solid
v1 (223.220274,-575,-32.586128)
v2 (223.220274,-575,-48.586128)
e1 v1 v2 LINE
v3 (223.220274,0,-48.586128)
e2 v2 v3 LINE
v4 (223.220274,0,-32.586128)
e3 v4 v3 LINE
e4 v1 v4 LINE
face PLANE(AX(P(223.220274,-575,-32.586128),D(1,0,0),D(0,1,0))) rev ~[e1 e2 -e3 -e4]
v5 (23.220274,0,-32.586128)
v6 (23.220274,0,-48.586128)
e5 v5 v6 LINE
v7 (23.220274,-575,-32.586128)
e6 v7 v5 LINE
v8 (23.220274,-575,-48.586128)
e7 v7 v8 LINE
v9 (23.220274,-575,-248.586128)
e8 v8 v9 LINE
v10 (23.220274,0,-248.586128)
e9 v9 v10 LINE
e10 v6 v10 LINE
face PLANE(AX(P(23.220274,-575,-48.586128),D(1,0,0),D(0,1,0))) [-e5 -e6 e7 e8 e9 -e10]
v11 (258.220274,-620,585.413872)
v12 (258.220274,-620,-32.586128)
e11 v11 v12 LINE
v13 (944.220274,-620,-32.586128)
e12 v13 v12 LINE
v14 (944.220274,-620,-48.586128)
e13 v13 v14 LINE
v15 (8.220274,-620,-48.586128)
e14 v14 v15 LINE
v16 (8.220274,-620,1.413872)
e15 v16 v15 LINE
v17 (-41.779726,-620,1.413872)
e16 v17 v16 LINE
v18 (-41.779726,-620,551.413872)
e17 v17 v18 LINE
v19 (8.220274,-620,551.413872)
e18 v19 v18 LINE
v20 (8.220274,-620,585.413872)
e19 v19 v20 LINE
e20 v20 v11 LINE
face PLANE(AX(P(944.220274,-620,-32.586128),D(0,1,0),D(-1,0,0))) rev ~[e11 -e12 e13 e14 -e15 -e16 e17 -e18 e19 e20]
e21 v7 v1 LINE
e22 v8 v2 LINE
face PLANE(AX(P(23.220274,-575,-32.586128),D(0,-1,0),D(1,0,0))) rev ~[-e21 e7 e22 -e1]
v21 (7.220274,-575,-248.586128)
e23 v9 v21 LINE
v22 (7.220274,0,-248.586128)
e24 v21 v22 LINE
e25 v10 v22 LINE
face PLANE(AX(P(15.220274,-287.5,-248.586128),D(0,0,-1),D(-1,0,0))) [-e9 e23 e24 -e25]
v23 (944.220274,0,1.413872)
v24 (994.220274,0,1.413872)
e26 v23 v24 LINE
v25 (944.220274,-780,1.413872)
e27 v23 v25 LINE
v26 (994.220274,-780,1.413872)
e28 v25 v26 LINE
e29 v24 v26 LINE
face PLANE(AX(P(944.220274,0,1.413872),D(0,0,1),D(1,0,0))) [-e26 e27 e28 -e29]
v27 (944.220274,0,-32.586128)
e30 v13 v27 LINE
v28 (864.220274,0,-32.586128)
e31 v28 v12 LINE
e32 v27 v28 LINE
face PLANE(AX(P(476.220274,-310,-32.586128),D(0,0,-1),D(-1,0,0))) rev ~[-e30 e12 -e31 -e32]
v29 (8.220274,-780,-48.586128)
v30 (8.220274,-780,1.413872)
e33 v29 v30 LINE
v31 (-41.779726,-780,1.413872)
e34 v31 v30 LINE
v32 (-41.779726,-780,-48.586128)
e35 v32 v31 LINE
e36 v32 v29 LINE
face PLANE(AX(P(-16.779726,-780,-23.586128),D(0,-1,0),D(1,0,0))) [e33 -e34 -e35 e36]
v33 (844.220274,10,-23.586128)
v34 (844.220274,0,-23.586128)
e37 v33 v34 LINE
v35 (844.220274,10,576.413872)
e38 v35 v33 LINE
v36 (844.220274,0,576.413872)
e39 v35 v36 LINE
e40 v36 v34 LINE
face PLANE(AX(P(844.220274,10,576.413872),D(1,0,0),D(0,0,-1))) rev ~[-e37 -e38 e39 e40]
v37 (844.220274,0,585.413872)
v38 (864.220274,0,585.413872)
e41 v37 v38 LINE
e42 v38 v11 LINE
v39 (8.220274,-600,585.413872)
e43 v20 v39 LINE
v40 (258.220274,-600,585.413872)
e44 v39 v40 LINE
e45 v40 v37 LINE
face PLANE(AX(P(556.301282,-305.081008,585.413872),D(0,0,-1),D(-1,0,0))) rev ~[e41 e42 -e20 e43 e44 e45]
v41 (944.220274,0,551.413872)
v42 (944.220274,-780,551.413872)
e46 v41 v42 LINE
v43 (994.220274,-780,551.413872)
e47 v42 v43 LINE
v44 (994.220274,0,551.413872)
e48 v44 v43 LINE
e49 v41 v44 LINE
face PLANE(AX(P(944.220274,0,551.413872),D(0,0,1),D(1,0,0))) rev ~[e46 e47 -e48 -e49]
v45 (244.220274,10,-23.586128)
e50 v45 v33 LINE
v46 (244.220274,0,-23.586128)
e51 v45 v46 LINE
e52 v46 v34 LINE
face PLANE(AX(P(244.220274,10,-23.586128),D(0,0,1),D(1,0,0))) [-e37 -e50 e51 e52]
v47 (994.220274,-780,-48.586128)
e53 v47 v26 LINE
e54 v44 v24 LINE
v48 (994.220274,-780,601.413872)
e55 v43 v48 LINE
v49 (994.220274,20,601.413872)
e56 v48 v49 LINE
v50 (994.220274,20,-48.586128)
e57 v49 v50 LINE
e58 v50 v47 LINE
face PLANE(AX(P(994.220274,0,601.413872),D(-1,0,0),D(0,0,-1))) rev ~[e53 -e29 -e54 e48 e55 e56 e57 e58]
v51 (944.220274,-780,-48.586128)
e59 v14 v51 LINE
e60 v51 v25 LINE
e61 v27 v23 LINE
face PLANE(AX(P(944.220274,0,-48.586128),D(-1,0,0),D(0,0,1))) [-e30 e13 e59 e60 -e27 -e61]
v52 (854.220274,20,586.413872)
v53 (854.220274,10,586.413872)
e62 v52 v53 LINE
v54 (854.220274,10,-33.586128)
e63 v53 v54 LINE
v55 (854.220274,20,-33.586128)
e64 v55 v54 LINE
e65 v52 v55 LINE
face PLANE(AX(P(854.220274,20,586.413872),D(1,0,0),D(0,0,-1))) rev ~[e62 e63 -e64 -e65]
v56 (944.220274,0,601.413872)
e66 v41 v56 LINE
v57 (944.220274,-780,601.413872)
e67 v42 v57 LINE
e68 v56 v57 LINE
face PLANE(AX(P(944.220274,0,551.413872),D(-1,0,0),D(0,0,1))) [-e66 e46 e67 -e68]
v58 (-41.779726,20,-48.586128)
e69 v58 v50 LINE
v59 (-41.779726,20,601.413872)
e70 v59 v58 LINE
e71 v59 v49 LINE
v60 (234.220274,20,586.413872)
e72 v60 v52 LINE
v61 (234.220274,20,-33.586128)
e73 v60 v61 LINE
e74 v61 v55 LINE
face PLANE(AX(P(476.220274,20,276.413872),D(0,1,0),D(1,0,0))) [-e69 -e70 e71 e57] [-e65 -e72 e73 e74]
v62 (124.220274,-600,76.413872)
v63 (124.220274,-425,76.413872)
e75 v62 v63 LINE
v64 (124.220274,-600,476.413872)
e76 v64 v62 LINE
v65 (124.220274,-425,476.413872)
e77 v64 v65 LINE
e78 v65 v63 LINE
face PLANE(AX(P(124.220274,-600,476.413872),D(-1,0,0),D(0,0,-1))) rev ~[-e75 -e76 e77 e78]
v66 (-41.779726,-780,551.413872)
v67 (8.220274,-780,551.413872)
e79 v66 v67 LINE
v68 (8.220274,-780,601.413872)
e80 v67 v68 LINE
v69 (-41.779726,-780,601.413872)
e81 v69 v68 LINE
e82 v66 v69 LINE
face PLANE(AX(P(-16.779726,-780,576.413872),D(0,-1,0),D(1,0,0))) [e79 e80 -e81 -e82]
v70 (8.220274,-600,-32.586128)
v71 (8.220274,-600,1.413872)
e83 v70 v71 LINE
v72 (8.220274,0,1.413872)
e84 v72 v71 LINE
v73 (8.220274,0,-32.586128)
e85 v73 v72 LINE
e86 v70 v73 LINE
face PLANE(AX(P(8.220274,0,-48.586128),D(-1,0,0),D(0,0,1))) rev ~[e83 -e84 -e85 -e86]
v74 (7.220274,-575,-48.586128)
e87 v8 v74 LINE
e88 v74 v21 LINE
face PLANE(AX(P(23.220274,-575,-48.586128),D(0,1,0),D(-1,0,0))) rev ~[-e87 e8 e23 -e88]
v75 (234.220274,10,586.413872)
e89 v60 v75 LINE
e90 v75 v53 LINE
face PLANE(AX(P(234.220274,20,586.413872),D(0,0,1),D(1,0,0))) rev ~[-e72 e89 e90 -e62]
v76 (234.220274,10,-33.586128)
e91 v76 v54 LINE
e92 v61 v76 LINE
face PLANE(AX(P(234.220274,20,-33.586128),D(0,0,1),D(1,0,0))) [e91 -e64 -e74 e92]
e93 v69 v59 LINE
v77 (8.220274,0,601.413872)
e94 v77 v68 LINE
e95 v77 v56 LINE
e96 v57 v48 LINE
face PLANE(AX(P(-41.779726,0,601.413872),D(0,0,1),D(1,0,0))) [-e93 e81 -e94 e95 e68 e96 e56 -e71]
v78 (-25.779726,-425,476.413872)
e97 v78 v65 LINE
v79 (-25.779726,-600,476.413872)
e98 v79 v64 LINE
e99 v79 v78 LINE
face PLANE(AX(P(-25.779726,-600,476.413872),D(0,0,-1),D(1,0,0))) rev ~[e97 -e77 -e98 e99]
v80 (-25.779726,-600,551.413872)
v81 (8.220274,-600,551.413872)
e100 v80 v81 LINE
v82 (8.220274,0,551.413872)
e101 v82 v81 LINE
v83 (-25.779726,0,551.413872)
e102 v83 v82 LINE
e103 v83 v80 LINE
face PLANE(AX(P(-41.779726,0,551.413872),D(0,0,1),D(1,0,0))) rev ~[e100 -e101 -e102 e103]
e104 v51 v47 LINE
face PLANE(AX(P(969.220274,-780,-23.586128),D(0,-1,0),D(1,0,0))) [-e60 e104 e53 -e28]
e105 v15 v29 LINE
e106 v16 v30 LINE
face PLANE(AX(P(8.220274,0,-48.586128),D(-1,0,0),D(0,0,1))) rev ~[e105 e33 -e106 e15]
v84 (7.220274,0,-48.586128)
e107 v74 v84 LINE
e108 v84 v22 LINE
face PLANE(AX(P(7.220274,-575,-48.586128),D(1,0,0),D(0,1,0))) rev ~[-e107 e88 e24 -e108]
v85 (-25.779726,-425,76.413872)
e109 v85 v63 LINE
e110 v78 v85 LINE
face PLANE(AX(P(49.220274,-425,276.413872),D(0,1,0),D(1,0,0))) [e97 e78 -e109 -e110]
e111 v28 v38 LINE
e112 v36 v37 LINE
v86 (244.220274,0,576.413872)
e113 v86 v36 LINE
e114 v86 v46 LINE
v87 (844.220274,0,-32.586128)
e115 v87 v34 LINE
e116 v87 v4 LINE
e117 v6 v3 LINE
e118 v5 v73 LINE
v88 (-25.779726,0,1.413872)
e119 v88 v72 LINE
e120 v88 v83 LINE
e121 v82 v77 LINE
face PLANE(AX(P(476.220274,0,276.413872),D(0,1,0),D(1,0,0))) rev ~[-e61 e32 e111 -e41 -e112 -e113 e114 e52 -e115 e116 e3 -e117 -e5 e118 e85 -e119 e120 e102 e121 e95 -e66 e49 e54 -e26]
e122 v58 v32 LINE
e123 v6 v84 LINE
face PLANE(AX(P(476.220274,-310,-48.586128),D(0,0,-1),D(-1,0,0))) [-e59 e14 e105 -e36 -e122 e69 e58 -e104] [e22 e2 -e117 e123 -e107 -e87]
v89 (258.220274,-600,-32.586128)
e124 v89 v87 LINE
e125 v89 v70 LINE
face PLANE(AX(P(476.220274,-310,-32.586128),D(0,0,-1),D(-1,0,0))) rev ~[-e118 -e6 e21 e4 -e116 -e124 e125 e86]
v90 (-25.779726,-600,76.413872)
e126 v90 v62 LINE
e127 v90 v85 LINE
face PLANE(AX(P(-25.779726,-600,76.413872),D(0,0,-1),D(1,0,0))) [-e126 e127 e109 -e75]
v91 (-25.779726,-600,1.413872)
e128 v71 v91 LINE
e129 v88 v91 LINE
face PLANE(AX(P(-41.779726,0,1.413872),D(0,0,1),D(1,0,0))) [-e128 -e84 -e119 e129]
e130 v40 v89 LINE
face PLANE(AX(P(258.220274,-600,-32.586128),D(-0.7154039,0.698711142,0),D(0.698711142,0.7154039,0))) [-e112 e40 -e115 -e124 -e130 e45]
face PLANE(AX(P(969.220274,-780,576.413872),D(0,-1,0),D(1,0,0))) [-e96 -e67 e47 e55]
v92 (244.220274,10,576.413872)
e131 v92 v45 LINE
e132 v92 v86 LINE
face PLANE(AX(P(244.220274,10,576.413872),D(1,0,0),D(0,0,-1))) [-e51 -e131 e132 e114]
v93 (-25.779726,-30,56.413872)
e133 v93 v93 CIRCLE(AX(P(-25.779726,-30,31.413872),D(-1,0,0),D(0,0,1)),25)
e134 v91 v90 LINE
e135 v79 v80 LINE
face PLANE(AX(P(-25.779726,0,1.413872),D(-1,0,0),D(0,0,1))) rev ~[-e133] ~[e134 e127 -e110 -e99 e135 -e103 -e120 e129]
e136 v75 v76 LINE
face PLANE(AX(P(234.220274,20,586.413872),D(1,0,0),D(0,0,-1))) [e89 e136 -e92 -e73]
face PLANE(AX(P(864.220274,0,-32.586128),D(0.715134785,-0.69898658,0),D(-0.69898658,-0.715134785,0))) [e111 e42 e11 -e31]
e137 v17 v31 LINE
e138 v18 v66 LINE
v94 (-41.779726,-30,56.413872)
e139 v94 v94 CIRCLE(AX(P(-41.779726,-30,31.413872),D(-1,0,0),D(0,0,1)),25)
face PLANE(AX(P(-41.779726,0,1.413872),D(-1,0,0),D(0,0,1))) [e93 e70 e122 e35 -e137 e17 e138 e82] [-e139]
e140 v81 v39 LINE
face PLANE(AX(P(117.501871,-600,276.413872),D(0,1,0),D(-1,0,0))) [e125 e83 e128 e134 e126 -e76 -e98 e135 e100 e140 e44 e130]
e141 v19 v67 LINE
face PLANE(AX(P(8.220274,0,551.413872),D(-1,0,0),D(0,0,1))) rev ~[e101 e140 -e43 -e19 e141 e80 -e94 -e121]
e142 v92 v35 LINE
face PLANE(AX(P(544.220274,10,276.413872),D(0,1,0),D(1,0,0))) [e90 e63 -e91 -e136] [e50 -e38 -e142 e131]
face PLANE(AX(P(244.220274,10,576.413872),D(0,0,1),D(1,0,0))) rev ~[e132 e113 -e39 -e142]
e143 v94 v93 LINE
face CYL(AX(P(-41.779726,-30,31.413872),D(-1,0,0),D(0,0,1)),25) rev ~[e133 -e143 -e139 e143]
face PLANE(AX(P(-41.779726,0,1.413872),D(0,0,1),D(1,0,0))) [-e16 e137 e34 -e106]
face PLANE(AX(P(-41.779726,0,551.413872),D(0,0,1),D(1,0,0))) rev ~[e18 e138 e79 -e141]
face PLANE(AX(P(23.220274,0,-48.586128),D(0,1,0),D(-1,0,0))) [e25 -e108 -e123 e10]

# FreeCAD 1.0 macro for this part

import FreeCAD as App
import Part
import Sketcher

V = App.Vector


def add_polygon(sketch, points):
    """Adds a closed chain of lines whose ends are joined by coincident constraints."""
    first, n = sketch.GeometryCount, len(points)
    for a, b in zip(points, points[1:] + points[:1]):
        sketch.addGeometry(Part.LineSegment(App.Vector(*a, 0), App.Vector(*b, 0)), False)
    for i in range(n):
        sketch.addConstraint(Sketcher.Constraint("Coincident", first + i, 2, first + (i + 1) % n, 1))

doc = App.newDocument("Part")
body = doc.addObject("PartDesign::Body", "Body")

# Sketch on XZ plane
sketch1 = body.newObject("Sketcher::SketchObject", "Sketch")
sketch1.AttachmentSupport = (doc.getObject("XZ_Plane"), [""])
sketch1.MapMode = "FlatFace"
add_polygon(sketch1, [(-42, -49), (-42, 601), (994, 601), (994, -49)])  # lines 0-3
sketch1.addConstraint([
    Sketcher.Constraint("Vertical", 0),
    Sketcher.Constraint("Horizontal", 1),
    Sketcher.Constraint("Vertical", 2),
    Sketcher.Constraint("Horizontal", 3),
    Sketcher.Constraint("DistanceX", 1, 1, 1, 2, 1036.0),
    Sketcher.Constraint("DistanceY", 0, 1, 0, 2, 650.0),
    Sketcher.Constraint("DistanceY", -1, 1, 0, 2, 601.413872),
    Sketcher.Constraint("DistanceX", 0, 2, -1, 1, 41.779726),
])
pad1 = body.newObject("PartDesign::Pad", "Pad")
pad1.Profile = sketch1
pad1.Length = 20
pad1.Reversed = True

# Sketch on XZ plane
sketch2 = body.newObject("Sketcher::SketchObject", "Sketch001")
sketch2.AttachmentSupport = (doc.getObject("XZ_Plane"), [""])
sketch2.MapMode = "FlatFace"
sketch2.AttachmentOffset = App.Placement(V(0, 0, -20), App.Rotation())
add_polygon(sketch2, [(234, -34), (234, 586), (854, 586), (854, -34)])  # lines 0-3
sketch2.addConstraint([
    Sketcher.Constraint("Vertical", 0),
    Sketcher.Constraint("Horizontal", 1),
    Sketcher.Constraint("Vertical", 2),
    Sketcher.Constraint("Horizontal", 3),
    Sketcher.Constraint("Equal", 3, 0),
    Sketcher.Constraint("DistanceX", 1, 1, 1, 2, 620.0),
    Sketcher.Constraint("DistanceY", -1, 1, 0, 2, 586.413872),
    Sketcher.Constraint("DistanceX", -1, 1, 0, 2, 234.220274),
])
pocket1 = body.newObject("PartDesign::Pocket", "Pocket")
pocket1.Profile = sketch2
pocket1.Length = 10
pocket1.Reversed = True

# Sketch on XZ plane
sketch3 = body.newObject("Sketcher::SketchObject", "Sketch002")
sketch3.AttachmentSupport = (doc.getObject("XZ_Plane"), [""])
sketch3.MapMode = "FlatFace"
sketch3.AttachmentOffset = App.Placement(V(0, 0, -10), App.Rotation())
add_polygon(sketch3, [(244, -24), (244, 576), (844, 576), (844, -24)])  # lines 0-3
sketch3.addConstraint([
    Sketcher.Constraint("Vertical", 0),
    Sketcher.Constraint("Horizontal", 1),
    Sketcher.Constraint("Vertical", 2),
    Sketcher.Constraint("Horizontal", 3),
    Sketcher.Constraint("Equal", 3, 0),
    Sketcher.Constraint("DistanceX", 1, 1, 1, 2, 600.0),
    Sketcher.Constraint("DistanceY", -1, 1, 0, 2, 576.413872),
    Sketcher.Constraint("DistanceX", -1, 1, 0, 2, 244.220274),
])
pocket2 = body.newObject("PartDesign::Pocket", "Pocket001")
pocket2.Profile = sketch3
pocket2.Length = 10
pocket2.Reversed = True

# Sketch on XZ plane
sketch4 = body.newObject("Sketcher::SketchObject", "Sketch003")
sketch4.AttachmentSupport = (doc.getObject("XZ_Plane"), [""])
sketch4.MapMode = "FlatFace"
add_polygon(sketch4, [(-42, 601), (-42, 551), (8, 551), (8, 601)])  # lines 0-3
add_polygon(sketch4, [(944, 601), (944, 551), (994, 551), (994, 601)])  # lines 4-7
add_polygon(sketch4, [(-42, 1), (-42, -49), (8, -49), (8, 1)])  # lines 8-11
add_polygon(sketch4, [(944, 1), (944, -49), (994, -49), (994, 1)])  # lines 12-15
sketch4.addConstraint([
    Sketcher.Constraint("Vertical", 0),
    Sketcher.Constraint("Horizontal", 1),
    Sketcher.Constraint("Vertical", 2),
    Sketcher.Constraint("Horizontal", 3),
    Sketcher.Constraint("Vertical", 4),
    Sketcher.Constraint("Horizontal", 5),
    Sketcher.Constraint("Vertical", 6),
    Sketcher.Constraint("Horizontal", 7),
    Sketcher.Constraint("Vertical", 8),
    Sketcher.Constraint("Horizontal", 9),
    Sketcher.Constraint("Vertical", 10),
    Sketcher.Constraint("Horizontal", 11),
    Sketcher.Constraint("Vertical", 12),
    Sketcher.Constraint("Horizontal", 13),
    Sketcher.Constraint("Vertical", 14),
    Sketcher.Constraint("Horizontal", 15),
    Sketcher.Constraint("Horizontal", 1, 2, 4, 2),
    Sketcher.Constraint("Horizontal", 3, 2, 6, 2),
    Sketcher.Constraint("Horizontal", 9, 2, 12, 2),
    Sketcher.Constraint("Horizontal", 11, 2, 14, 2),
    Sketcher.Constraint("Vertical", 3, 2, 8, 2),
    Sketcher.Constraint("Vertical", 2, 2, 9, 2),
    Sketcher.Constraint("Vertical", 7, 2, 12, 2),
    Sketcher.Constraint("Vertical", 6, 2, 13, 2),
    Sketcher.Constraint("Equal", 3, 5),
    Sketcher.Constraint("Equal", 15, 0),
    Sketcher.Constraint("Equal", 6, 8),
    Sketcher.Constraint("DistanceX", 1, 1, 1, 2, 50.0),
    Sketcher.Constraint("DistanceX", 1, 2, 4, 2, 936.0),
    Sketcher.Constraint("DistanceY", 8, 2, 0, 2, 600.0),
    Sketcher.Constraint("DistanceY", -1, 1, 0, 2, 551.413872),
    Sketcher.Constraint("DistanceX", 0, 2, -1, 1, 41.779726),
])
pad2 = body.newObject("PartDesign::Pad", "Pad001")
pad2.Profile = sketch4
pad2.Length = 780

# Sketch on XZ plane
sketch5 = body.newObject("Sketcher::SketchObject", "Sketch004")
sketch5.AttachmentSupport = (doc.getObject("XZ_Plane"), [""])
sketch5.MapMode = "FlatFace"
add_polygon(sketch5, [(-42, 551), (-42, 1), (-26, 1), (-26, 551)])  # lines 0-3
sketch5.addConstraint([
    Sketcher.Constraint("Vertical", 0),
    Sketcher.Constraint("Horizontal", 1),
    Sketcher.Constraint("Vertical", 2),
    Sketcher.Constraint("Horizontal", 3),
    Sketcher.Constraint("DistanceX", 1, 1, 1, 2, 16.0),
    Sketcher.Constraint("DistanceY", 0, 2, 0, 1, 550.0),
    Sketcher.Constraint("DistanceY", -1, 1, 0, 2, 1.413872),
    Sketcher.Constraint("DistanceX", 0, 2, -1, 1, 41.779726),
])
pad3 = body.newObject("PartDesign::Pad", "Pad002")
pad3.Profile = sketch5
pad3.Length = 620

# Sketch on XZ plane
sketch6 = body.newObject("Sketcher::SketchObject", "Sketch005")
sketch6.AttachmentSupport = (doc.getObject("XZ_Plane"), [""])
sketch6.MapMode = "FlatFace"
sketch6.AttachmentOffset = App.Placement(V(0, 0, 620), App.Rotation())
add_polygon(sketch6, [(8, 551), (-26, 551), (-26, 1), (8, 1), (8, -33), (258, -33), (258, 585), (8, 585)])  # lines 0-7
sketch6.addConstraint([
    Sketcher.Constraint("Horizontal", 0),
    Sketcher.Constraint("Vertical", 1),
    Sketcher.Constraint("Horizontal", 2),
    Sketcher.Constraint("Vertical", 3),
    Sketcher.Constraint("Horizontal", 4),
    Sketcher.Constraint("Vertical", 5),
    Sketcher.Constraint("Horizontal", 6),
    Sketcher.Constraint("Vertical", 7),
    Sketcher.Constraint("Vertical", 3, 2, 6, 2),
    Sketcher.Constraint("Equal", 2, 3),
    Sketcher.Constraint("Equal", 3, 7),
    Sketcher.Constraint("DistanceX", 0, 2, 0, 1, 34.0),
    Sketcher.Constraint("DistanceX", 4, 1, 4, 2, 250.0),
    Sketcher.Constraint("DistanceY", 1, 2, 1, 1, 550.0),
    Sketcher.Constraint("DistanceY", -1, 1, 0, 2, 551.413872),
    Sketcher.Constraint("DistanceX", 0, 2, -1, 1, 25.779726),
])
pad4 = body.newObject("PartDesign::Pad", "Pad003")
pad4.Profile = sketch6
pad4.Length = 20
pad4.Reversed = True

# Sketch on XZ plane
sketch7 = body.newObject("Sketcher::SketchObject", "Sketch006")
sketch7.AttachmentSupport = (doc.getObject("XZ_Plane"), [""])
sketch7.MapMode = "FlatFace"
sketch7.AttachmentOffset = App.Placement(V(0, 0, 600), App.Rotation())
add_polygon(sketch7, [(-26, 76), (-26, 476), (124, 476), (124, 76)])  # lines 0-3
sketch7.addConstraint([
    Sketcher.Constraint("Vertical", 0),
    Sketcher.Constraint("Horizontal", 1),
    Sketcher.Constraint("Vertical", 2),
    Sketcher.Constraint("Horizontal", 3),
    Sketcher.Constraint("DistanceX", 1, 1, 1, 2, 150.0),
    Sketcher.Constraint("DistanceY", 0, 1, 0, 2, 400.0),
    Sketcher.Constraint("DistanceY", -1, 1, 0, 2, 476.413872),
    Sketcher.Constraint("DistanceX", 0, 2, -1, 1, 25.779726),
])
pad5 = body.newObject("PartDesign::Pad", "Pad004")
pad5.Profile = sketch7
pad5.Length = 175
pad5.Reversed = True

# Sketch on YZ plane
sketch8 = body.newObject("Sketcher::SketchObject", "Sketch007")
sketch8.AttachmentSupport = (doc.getObject("YZ_Plane"), [""])
sketch8.MapMode = "FlatFace"
sketch8.AttachmentOffset = App.Placement(V(0, 0, -41.779726), App.Rotation())
sketch8.addGeometry(Part.Circle(V(-30, 31, 0), V(0, 0, 1), 25), False)
sketch8.addConstraint([
    Sketcher.Constraint("Diameter", 0, 50.0),
    Sketcher.Constraint("DistanceX", 0, 3, -1, 1, 30.0),
    Sketcher.Constraint("DistanceY", -1, 1, 0, 3, 31.413872),
])
pocket3 = body.newObject("PartDesign::Pocket", "Pocket002")
pocket3.Profile = sketch8
pocket3.Length = 16
pocket3.Reversed = True

# Sketch on XY plane
sketch9 = body.newObject("Sketcher::SketchObject", "Sketch008")
sketch9.AttachmentSupport = (doc.getObject("XY_Plane"), [""])
sketch9.MapMode = "FlatFace"
sketch9.AttachmentOffset = App.Placement(V(0, 0, -32.586128), App.Rotation())
add_polygon(sketch9, [(944, 0), (944, -620), (8, -620), (8, 0)])  # lines 0-3
sketch9.addConstraint([
    Sketcher.Constraint("Vertical", 0),
    Sketcher.Constraint("Horizontal", 1),
    Sketcher.Constraint("Vertical", 2),
    Sketcher.Constraint("Horizontal", 3),
    Sketcher.Constraint("PointOnObject", 2, 2, -1),
    Sketcher.Constraint("DistanceX", 1, 2, 1, 1, 936.0),
    Sketcher.Constraint("DistanceY", 0, 2, 0, 1, 620.0),
    Sketcher.Constraint("DistanceX", -1, 1, 0, 2, 944.220274),
])
pad6 = body.newObject("PartDesign::Pad", "Pad005")
pad6.Profile = sketch9
pad6.Length = 16
pad6.Reversed = True

# Sketch on XY plane
sketch10 = body.newObject("Sketcher::SketchObject", "Sketch009")
sketch10.AttachmentSupport = (doc.getObject("XY_Plane"), [""])
sketch10.MapMode = "FlatFace"
sketch10.AttachmentOffset = App.Placement(V(0, 0, -32.586128), App.Rotation())
add_polygon(sketch10, [(258, -600), (258, -620), (864, 0), (844, 0)])  # lines 0-3
sketch10.addConstraint([
    Sketcher.Constraint("Vertical", 0),
    Sketcher.Constraint("Horizontal", 2),
    Sketcher.Constraint("PointOnObject", 1, 2, -1),
    Sketcher.Constraint("Equal", 2, 0),
    Sketcher.Constraint("DistanceX", 2, 2, 2, 1, 20.0),
    Sketcher.Constraint("DistanceY", 0, 2, -1, 1, 620.0),
    Sketcher.Constraint("DistanceX", 0, 2, 1, 2, 606.0),
    Sketcher.Constraint("DistanceX", -1, 1, 0, 2, 258.220274),
])
pad7 = body.newObject("PartDesign::Pad", "Pad006")
pad7.Profile = sketch10
pad7.Length = 618

# Sketch on XY plane
sketch11 = body.newObject("Sketcher::SketchObject", "Sketch010")
sketch11.AttachmentSupport = (doc.getObject("XY_Plane"), [""])
sketch11.MapMode = "FlatFace"
sketch11.AttachmentOffset = App.Placement(V(0, 0, -32.586128), App.Rotation())
add_polygon(sketch11, [(23, 0), (23, -575), (223, -575), (223, 0)])  # lines 0-3
sketch11.addConstraint([
    Sketcher.Constraint("Vertical", 0),
    Sketcher.Constraint("Horizontal", 1),
    Sketcher.Constraint("Vertical", 2),
    Sketcher.Constraint("Horizontal", 3),
    Sketcher.Constraint("PointOnObject", 2, 2, -1),
    Sketcher.Constraint("DistanceX", 1, 1, 1, 2, 200.0),
    Sketcher.Constraint("DistanceY", 0, 2, 0, 1, 575.0),
    Sketcher.Constraint("DistanceX", -1, 1, 0, 2, 23.220274),
])
pocket4 = body.newObject("PartDesign::Pocket", "Pocket003")
pocket4.Profile = sketch11
pocket4.Length = 16

# Sketch on XY plane
sketch12 = body.newObject("Sketcher::SketchObject", "Sketch011")
sketch12.AttachmentSupport = (doc.getObject("XY_Plane"), [""])
sketch12.MapMode = "FlatFace"
sketch12.AttachmentOffset = App.Placement(V(0, 0, -48.586128), App.Rotation())
add_polygon(sketch12, [(23, 0), (23, -575), (7, -575), (7, 0)])  # lines 0-3
sketch12.addConstraint([
    Sketcher.Constraint("Vertical", 0),
    Sketcher.Constraint("Horizontal", 1),
    Sketcher.Constraint("Vertical", 2),
    Sketcher.Constraint("Horizontal", 3),
    Sketcher.Constraint("PointOnObject", 2, 2, -1),
    Sketcher.Constraint("DistanceX", 1, 2, 1, 1, 16.0),
    Sketcher.Constraint("DistanceY", 0, 2, 0, 1, 575.0),
    Sketcher.Constraint("DistanceX", -1, 1, 0, 2, 23.220274),
])
pad8 = body.newObject("PartDesign::Pad", "Pad007")
pad8.Profile = sketch12
pad8.Length = 200
pad8.Reversed = True

doc.recompute()
